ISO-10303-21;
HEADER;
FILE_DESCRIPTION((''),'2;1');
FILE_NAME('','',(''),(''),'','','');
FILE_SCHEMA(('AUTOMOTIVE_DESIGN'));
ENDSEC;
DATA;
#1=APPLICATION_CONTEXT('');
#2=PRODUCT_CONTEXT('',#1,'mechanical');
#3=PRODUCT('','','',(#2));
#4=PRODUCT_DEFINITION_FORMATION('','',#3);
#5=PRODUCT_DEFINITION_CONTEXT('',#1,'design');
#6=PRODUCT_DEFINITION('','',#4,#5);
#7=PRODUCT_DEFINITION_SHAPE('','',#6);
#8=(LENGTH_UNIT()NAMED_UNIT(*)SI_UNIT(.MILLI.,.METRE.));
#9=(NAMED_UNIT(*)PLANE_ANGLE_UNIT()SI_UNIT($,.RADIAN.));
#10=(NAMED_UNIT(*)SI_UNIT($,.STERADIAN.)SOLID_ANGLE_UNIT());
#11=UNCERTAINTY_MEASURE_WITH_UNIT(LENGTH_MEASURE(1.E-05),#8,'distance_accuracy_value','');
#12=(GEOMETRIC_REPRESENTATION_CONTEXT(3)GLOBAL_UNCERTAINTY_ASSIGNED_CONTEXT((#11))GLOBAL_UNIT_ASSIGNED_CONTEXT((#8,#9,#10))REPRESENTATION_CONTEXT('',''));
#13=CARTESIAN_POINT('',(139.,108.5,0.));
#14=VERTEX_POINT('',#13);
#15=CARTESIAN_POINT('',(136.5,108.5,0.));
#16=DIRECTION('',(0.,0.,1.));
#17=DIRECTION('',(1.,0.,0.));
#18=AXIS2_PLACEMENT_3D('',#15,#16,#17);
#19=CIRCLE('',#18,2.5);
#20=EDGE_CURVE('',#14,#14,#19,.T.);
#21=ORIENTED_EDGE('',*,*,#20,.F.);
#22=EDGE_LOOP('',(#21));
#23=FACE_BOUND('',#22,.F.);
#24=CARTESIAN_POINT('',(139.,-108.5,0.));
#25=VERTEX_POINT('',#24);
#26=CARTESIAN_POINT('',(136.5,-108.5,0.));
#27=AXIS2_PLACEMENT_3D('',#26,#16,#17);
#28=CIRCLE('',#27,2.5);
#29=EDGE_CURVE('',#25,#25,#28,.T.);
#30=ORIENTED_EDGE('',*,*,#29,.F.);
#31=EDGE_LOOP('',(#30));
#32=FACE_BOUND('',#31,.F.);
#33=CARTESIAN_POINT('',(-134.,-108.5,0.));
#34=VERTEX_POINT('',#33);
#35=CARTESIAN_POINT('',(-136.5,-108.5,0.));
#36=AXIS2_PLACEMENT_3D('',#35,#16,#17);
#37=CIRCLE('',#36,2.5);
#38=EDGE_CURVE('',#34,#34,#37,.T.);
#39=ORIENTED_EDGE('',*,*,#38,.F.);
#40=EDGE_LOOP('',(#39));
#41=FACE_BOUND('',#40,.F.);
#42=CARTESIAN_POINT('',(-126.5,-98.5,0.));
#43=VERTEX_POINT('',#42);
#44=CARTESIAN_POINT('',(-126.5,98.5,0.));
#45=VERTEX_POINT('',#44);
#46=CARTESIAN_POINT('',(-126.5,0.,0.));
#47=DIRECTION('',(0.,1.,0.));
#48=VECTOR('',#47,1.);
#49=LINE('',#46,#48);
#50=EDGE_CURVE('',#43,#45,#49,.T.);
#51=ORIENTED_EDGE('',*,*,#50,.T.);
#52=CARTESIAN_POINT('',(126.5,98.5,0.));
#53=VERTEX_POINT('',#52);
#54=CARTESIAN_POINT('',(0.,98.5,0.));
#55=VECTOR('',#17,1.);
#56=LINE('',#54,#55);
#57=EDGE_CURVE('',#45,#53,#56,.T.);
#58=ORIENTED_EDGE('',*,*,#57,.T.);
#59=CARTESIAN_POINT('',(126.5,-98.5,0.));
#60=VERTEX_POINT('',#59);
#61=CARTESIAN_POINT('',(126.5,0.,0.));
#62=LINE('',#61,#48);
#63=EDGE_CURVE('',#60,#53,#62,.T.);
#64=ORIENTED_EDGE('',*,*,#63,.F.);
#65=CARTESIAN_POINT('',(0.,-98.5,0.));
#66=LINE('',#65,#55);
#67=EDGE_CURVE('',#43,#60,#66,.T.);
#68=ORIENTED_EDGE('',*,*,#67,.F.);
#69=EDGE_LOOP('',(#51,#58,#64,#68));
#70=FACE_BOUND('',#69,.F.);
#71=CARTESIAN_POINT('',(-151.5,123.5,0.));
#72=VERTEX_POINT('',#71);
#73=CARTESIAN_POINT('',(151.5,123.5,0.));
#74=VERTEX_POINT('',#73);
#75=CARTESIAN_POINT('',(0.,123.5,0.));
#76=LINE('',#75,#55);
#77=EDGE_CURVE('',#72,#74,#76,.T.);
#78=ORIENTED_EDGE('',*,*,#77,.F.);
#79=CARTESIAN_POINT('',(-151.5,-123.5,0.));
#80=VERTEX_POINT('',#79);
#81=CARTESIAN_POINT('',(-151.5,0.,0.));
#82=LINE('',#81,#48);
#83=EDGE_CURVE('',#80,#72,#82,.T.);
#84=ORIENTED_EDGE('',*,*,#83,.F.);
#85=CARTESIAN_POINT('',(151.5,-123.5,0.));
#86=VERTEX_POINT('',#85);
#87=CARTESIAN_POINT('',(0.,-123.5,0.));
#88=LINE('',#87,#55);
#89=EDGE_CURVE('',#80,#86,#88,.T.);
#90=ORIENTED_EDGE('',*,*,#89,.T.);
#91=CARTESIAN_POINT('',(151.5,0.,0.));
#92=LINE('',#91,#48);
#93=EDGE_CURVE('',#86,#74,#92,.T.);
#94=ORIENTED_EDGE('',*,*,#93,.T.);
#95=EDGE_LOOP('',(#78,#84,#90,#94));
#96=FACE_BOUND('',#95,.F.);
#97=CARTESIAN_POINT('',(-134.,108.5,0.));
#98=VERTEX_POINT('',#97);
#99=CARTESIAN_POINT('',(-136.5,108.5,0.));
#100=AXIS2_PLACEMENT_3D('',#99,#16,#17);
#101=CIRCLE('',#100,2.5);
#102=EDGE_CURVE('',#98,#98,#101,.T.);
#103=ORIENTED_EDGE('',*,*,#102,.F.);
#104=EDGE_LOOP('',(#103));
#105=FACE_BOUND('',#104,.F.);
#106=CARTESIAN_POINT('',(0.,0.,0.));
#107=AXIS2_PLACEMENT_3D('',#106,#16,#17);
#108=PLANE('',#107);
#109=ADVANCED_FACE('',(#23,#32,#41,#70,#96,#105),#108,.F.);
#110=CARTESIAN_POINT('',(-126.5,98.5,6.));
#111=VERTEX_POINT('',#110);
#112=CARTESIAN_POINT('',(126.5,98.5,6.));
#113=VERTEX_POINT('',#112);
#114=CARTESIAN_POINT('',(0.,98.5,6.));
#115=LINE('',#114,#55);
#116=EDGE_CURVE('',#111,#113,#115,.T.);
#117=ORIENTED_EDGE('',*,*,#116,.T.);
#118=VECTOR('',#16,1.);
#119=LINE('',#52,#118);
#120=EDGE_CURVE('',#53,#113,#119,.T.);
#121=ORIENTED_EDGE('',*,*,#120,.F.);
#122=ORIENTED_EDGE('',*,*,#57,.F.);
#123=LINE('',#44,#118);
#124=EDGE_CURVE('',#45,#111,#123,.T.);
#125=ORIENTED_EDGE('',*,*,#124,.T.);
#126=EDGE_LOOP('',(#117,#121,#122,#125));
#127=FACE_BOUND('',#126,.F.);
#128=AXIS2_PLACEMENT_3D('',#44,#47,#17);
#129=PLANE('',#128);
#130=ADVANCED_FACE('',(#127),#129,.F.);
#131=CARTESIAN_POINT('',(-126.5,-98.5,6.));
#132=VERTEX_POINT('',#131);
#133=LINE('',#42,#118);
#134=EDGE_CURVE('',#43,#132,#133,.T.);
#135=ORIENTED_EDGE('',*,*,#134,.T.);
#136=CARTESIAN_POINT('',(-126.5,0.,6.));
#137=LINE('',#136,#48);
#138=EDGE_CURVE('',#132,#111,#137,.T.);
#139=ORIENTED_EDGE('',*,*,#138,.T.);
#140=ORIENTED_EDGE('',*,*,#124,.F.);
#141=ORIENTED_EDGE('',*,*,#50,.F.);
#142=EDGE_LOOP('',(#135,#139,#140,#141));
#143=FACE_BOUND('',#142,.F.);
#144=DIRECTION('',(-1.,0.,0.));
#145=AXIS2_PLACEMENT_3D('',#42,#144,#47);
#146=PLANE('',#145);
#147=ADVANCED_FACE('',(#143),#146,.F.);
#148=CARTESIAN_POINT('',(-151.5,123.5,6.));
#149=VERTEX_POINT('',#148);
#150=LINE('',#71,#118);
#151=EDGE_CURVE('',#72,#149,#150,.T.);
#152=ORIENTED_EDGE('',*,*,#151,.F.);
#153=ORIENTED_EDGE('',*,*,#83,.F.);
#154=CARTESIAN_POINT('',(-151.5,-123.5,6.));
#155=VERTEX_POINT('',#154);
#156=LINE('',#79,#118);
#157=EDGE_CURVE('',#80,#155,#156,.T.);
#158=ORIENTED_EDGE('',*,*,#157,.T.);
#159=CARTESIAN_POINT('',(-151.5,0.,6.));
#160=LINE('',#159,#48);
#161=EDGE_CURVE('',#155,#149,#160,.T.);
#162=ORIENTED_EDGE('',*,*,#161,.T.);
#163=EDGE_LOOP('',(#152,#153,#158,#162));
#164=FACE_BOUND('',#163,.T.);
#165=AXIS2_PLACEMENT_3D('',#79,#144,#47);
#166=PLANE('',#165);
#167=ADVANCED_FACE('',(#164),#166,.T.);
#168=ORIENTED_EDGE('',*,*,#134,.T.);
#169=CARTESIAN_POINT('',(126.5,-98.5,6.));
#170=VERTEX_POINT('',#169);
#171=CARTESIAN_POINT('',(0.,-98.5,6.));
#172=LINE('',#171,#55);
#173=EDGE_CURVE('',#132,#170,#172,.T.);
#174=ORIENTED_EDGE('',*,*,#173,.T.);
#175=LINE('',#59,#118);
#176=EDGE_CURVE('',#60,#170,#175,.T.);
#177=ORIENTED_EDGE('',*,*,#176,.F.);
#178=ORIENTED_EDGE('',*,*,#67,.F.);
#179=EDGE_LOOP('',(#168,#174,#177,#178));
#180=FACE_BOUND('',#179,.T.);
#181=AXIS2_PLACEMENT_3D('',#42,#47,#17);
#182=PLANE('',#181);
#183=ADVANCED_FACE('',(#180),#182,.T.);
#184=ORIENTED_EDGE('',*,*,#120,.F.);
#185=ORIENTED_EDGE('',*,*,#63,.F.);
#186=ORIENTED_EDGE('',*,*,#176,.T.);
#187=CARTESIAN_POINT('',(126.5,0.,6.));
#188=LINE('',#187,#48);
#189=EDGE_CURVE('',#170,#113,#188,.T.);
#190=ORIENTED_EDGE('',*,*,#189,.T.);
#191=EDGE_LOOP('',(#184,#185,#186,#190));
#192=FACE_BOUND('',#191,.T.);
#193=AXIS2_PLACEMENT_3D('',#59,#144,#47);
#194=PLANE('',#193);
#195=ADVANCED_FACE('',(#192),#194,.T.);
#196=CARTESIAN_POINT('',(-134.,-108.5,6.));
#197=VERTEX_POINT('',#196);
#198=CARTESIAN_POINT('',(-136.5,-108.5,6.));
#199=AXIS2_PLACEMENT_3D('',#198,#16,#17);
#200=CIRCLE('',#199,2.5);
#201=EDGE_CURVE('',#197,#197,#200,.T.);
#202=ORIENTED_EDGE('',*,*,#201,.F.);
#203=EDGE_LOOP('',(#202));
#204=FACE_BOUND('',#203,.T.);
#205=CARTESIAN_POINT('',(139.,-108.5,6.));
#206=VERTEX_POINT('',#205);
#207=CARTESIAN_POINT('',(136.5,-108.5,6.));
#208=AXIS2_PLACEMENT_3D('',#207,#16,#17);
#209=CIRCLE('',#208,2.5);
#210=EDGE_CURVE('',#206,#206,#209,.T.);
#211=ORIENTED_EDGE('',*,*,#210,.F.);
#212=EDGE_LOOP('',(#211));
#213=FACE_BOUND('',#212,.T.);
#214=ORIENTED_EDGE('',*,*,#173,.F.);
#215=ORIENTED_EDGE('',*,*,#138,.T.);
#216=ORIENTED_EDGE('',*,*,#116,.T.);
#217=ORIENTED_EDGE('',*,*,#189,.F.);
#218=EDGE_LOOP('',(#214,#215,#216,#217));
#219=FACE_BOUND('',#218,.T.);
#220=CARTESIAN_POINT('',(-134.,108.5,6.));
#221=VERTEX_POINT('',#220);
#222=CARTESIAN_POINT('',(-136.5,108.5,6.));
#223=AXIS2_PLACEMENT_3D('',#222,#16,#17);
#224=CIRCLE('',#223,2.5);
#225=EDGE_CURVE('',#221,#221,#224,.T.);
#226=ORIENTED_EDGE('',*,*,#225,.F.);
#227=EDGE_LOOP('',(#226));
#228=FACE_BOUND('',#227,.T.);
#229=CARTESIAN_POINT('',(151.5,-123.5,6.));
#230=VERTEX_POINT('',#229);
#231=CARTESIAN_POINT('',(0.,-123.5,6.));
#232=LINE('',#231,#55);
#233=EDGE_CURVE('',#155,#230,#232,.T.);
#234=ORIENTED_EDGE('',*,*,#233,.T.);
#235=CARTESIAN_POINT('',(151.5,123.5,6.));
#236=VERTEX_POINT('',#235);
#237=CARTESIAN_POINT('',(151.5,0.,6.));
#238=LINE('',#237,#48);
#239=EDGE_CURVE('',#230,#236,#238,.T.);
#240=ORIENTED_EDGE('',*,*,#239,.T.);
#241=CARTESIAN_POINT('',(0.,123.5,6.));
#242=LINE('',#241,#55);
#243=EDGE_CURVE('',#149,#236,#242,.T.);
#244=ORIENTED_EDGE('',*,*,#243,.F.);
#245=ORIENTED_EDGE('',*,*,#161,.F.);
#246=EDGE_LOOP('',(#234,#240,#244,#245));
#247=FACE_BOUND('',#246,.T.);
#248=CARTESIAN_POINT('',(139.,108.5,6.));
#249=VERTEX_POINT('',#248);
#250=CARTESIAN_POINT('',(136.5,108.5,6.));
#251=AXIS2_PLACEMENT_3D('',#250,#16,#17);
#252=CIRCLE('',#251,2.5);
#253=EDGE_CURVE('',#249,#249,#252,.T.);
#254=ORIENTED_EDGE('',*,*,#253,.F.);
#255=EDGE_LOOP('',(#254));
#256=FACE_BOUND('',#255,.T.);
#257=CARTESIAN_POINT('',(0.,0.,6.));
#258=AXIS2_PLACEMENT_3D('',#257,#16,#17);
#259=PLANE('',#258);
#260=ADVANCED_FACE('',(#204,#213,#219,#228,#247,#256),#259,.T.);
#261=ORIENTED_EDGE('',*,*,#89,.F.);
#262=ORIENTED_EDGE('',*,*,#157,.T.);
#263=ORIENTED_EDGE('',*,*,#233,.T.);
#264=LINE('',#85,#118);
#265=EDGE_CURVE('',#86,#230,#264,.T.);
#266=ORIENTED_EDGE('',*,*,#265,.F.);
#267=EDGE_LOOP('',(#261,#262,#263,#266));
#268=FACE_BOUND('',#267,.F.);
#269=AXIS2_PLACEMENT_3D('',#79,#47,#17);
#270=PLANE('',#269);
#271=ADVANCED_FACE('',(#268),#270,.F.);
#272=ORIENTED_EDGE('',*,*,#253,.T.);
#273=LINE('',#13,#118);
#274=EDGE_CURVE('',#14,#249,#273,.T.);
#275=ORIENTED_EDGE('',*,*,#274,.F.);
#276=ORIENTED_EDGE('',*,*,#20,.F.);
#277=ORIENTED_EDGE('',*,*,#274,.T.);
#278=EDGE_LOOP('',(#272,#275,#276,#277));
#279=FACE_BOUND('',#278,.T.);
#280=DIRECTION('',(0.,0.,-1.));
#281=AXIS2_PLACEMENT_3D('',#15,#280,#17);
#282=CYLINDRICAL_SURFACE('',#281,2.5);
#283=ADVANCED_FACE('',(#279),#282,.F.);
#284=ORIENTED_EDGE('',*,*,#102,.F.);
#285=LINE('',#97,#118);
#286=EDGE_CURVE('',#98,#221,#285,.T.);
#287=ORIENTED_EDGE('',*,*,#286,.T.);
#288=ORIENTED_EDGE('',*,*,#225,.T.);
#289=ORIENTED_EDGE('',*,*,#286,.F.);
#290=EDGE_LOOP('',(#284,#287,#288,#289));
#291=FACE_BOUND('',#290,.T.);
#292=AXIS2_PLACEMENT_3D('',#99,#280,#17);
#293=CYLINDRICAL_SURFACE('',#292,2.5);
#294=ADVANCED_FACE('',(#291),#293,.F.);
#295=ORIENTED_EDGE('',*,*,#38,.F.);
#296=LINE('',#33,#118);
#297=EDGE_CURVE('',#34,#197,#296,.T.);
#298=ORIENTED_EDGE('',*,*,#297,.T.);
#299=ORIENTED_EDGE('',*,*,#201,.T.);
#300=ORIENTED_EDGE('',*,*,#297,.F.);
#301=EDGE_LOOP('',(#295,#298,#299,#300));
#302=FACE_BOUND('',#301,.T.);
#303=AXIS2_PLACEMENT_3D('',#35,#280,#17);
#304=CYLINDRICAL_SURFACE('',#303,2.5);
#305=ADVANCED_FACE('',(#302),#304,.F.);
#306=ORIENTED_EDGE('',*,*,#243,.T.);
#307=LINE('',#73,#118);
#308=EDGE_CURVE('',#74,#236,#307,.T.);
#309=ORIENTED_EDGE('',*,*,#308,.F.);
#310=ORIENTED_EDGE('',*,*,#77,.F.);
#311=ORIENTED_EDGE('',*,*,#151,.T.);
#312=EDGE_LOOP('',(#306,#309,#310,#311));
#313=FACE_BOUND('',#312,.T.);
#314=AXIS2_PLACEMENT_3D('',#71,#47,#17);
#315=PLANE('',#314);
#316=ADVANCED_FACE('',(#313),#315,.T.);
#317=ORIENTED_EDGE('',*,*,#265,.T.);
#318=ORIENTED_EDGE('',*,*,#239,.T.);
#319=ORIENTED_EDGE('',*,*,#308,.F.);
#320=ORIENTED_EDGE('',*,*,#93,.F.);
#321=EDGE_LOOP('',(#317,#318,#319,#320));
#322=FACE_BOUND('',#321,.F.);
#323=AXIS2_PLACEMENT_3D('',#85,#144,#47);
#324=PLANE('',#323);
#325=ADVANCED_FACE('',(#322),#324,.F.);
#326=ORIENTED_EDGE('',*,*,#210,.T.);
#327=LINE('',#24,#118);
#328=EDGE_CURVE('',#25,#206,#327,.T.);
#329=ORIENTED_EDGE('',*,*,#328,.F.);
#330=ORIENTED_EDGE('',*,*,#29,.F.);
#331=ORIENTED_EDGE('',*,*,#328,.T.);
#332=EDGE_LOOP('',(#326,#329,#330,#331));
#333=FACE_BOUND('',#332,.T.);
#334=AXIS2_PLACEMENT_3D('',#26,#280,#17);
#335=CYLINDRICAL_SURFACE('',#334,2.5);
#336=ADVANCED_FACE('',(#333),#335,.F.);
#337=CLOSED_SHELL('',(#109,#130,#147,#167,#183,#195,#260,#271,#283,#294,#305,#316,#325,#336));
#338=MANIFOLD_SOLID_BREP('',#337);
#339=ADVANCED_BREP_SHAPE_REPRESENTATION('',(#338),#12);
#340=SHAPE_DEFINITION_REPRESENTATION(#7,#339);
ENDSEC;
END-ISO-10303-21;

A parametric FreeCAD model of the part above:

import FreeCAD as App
import Part
import Sketcher

V = App.Vector
Q = App.Units.Quantity

doc = App.newDocument("Part")
body = doc.addObject("PartDesign::Body", "Body")

# Sketch on XY plane
sketch1 = doc.addObject("Sketcher::SketchObject", "Sketch")
body.addObject(sketch1)
sketch1.AttachmentSupport = (doc.XY_Plane, [""])
sketch1.MapMode = "FlatFace"
sketch1.addGeometry([
    Part.LineSegment(V(-151.5, 123.5, 0), V(-151.5, -123.5, 0)),  # 0
    Part.LineSegment(V(-151.5, -123.5, 0), V(151.5, -123.5, 0)),  # 1
    Part.LineSegment(V(151.5, -123.5, 0), V(151.5, 123.5, 0)),  # 2
    Part.LineSegment(V(151.5, 123.5, 0), V(-151.5, 123.5, 0)),  # 3
    Part.Circle(V(-136.5, -108.5, 0), V(0, 0, 1), 2.5),  # 4
    Part.Circle(V(136.5, -108.5, 0), V(0, 0, 1), 2.5),  # 5
    Part.Circle(V(-136.5, 108.5, 0), V(0, 0, 1), 2.5),  # 6
    Part.LineSegment(V(126.5, -98.5, 0), V(-126.5, -98.5, 0)),  # 7
    Part.LineSegment(V(-126.5, -98.5, 0), V(-126.5, 98.5, 0)),  # 8
    Part.LineSegment(V(-126.5, 98.5, 0), V(126.5, 98.5, 0)),  # 9
    Part.LineSegment(V(126.5, 98.5, 0), V(126.5, -98.5, 0)),  # 10
    Part.Circle(V(136.5, 108.5, 0), V(0, 0, 1), 2.5),  # 11
], False)
sketch1.addConstraint([
    Sketcher.Constraint("Coincident", 0, 2, 1, 1),
    Sketcher.Constraint("Coincident", 1, 2, 2, 1),
    Sketcher.Constraint("Coincident", 2, 2, 3, 1),
    Sketcher.Constraint("Coincident", 3, 2, 0, 1),
    Sketcher.Constraint("Coincident", 7, 2, 8, 1),
    Sketcher.Constraint("Coincident", 8, 2, 9, 1),
    Sketcher.Constraint("Coincident", 9, 2, 10, 1),
    Sketcher.Constraint("Coincident", 10, 2, 7, 1),
    Sketcher.Constraint("Vertical", 0),
    Sketcher.Constraint("Horizontal", 1),
    Sketcher.Constraint("Vertical", 2),
    Sketcher.Constraint("Horizontal", 3),
    Sketcher.Constraint("Horizontal", 7),
    Sketcher.Constraint("Vertical", 8),
    Sketcher.Constraint("Horizontal", 9),
    Sketcher.Constraint("Vertical", 10),
    Sketcher.Constraint("Equal", 4, 5),
    Sketcher.Constraint("Equal", 5, 6),
    Sketcher.Constraint("Equal", 6, 11),
    Sketcher.Constraint("Symmetric", 5, 3, 6, 3, -1, 1),
    Sketcher.Constraint("Symmetric", 4, 3, 11, 3, -1, 1),
    Sketcher.Constraint("Symmetric", 0, 2, 2, 2, -1, 1),
    Sketcher.Constraint("Symmetric", 7, 2, 9, 2, -1, 1),
    Sketcher.Constraint("Symmetric", 4, 3, 5, 3, -2),
    Sketcher.Constraint("Diameter", 4, Q("5 mm")),
    Sketcher.Constraint("DistanceX", 1, 1, 1, 2, Q("303 mm")),
    Sketcher.Constraint("DistanceX", 7, 2, 7, 1, Q("253 mm")),
    Sketcher.Constraint("DistanceY", 0, 2, 0, 1, Q("247 mm")),
    Sketcher.Constraint("DistanceY", 8, 1, 8, 2, Q("197 mm")),
    Sketcher.Constraint("DistanceX", 4, 3, 5, 3, Q("273 mm")),
    Sketcher.Constraint("DistanceY", 4, 3, 6, 3, Q("217 mm")),
])
pad1 = doc.addObject("PartDesign::Pad", "Pad")
body.addObject(pad1)
pad1.Profile = sketch1
pad1.Length = 6

doc.recompute()
